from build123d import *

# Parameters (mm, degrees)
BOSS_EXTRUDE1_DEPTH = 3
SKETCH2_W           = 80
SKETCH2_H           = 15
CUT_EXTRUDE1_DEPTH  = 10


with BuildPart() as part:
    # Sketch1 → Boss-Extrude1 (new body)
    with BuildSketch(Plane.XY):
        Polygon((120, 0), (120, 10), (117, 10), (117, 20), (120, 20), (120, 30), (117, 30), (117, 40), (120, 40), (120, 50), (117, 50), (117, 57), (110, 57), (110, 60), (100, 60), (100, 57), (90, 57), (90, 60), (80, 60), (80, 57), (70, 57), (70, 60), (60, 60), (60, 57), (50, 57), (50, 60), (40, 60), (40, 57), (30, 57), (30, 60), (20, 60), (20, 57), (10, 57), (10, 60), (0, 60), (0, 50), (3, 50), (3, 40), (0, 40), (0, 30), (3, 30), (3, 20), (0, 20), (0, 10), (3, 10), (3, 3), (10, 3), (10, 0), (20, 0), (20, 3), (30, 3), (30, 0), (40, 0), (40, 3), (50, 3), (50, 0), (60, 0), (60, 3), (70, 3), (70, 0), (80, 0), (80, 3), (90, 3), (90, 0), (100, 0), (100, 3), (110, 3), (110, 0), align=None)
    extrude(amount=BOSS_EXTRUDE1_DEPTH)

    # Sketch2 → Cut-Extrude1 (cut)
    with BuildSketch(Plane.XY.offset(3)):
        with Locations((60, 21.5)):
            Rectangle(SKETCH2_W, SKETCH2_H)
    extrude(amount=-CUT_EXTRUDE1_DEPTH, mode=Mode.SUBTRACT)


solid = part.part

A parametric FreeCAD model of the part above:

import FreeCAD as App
import Part
import Sketcher

V = App.Vector


def add_polygon(sketch, points):
    """Adds a closed chain of lines whose ends are joined by coincident constraints."""
    first, n = sketch.GeometryCount, len(points)
    for a, b in zip(points, points[1:] + points[:1]):
        sketch.addGeometry(Part.LineSegment(App.Vector(*a, 0), App.Vector(*b, 0)), False)
    for i in range(n):
        sketch.addConstraint(Sketcher.Constraint("Coincident", first + i, 2, first + (i + 1) % n, 1))

doc = App.newDocument("Part")
body = doc.addObject("PartDesign::Body", "Body")

sketch1 = doc.addObject("Sketcher::SketchObject", "Sketch")
body.addObject(sketch1)
sketch1.AttachmentSupport = (doc.XY_Plane, [""])
sketch1.MapMode = "FlatFace"
add_polygon(sketch1, [(120, 0), (120, 10), (117, 10), (117, 20), (120, 20), (120, 30), (117, 30), (117, 40), (120, 40), (120, 50), (117, 50), (117, 57), (110, 57), (110, 60), (100, 60), (100, 57), (90, 57), (90, 60), (80, 60), (80, 57), (70, 57), (70, 60), (60, 60), (60, 57), (50, 57), (50, 60), (40, 60), (40, 57), (30, 57), (30, 60), (20, 60), (20, 57), (10, 57), (10, 60), (0, 60), (0, 50), (3, 50), (3, 40), (0, 40), (0, 30), (3, 30), (3, 20), (0, 20), (0, 10), (3, 10), (3, 3), (10, 3), (10, 0), (20, 0), (20, 3), (30, 3), (30, 0), (40, 0), (40, 3), (50, 3), (50, 0), (60, 0), (60, 3), (70, 3), (70, 0), (80, 0), (80, 3), (90, 3), (90, 0), (100, 0), (100, 3), (110, 3), (110, 0)])
sketch1.addConstraint([
    Sketcher.Constraint("Vertical", 0),
    Sketcher.Constraint("Horizontal", 1),
    Sketcher.Constraint("Vertical", 2),
    Sketcher.Constraint("Horizontal", 3),
    Sketcher.Constraint("Vertical", 4),
    Sketcher.Constraint("Horizontal", 5),
    Sketcher.Constraint("Vertical", 6),
    Sketcher.Constraint("Horizontal", 7),
    Sketcher.Constraint("Vertical", 8),
    Sketcher.Constraint("Horizontal", 9),
    Sketcher.Constraint("Vertical", 10),
    Sketcher.Constraint("Horizontal", 11),
    Sketcher.Constraint("Vertical", 12),
    Sketcher.Constraint("Horizontal", 13),
    Sketcher.Constraint("Vertical", 14),
    Sketcher.Constraint("Horizontal", 15),
    Sketcher.Constraint("Vertical", 16),
    Sketcher.Constraint("Horizontal", 17),
    Sketcher.Constraint("Vertical", 18),
    Sketcher.Constraint("Horizontal", 19),
    Sketcher.Constraint("Vertical", 20),
    Sketcher.Constraint("Horizontal", 21),
    Sketcher.Constraint("Vertical", 22),
    Sketcher.Constraint("Horizontal", 23),
    Sketcher.Constraint("Vertical", 24),
    Sketcher.Constraint("Horizontal", 25),
    Sketcher.Constraint("Vertical", 26),
    Sketcher.Constraint("Horizontal", 27),
    Sketcher.Constraint("Vertical", 28),
    Sketcher.Constraint("Horizontal", 29),
    Sketcher.Constraint("Vertical", 30),
    Sketcher.Constraint("Horizontal", 31),
    Sketcher.Constraint("Vertical", 32),
    Sketcher.Constraint("Horizontal", 33),
    Sketcher.Constraint("Vertical", 34),
    Sketcher.Constraint("Horizontal", 35),
    Sketcher.Constraint("Vertical", 36),
    Sketcher.Constraint("Horizontal", 37),
    Sketcher.Constraint("Vertical", 38),
    Sketcher.Constraint("Horizontal", 39),
    Sketcher.Constraint("Vertical", 40),
    Sketcher.Constraint("Horizontal", 41),
    Sketcher.Constraint("Vertical", 42),
    Sketcher.Constraint("Horizontal", 43),
    Sketcher.Constraint("Vertical", 44),
    Sketcher.Constraint("Horizontal", 45),
    Sketcher.Constraint("Vertical", 46),
    Sketcher.Constraint("Horizontal", 47),
    Sketcher.Constraint("Vertical", 48),
    Sketcher.Constraint("Horizontal", 49),
    Sketcher.Constraint("Vertical", 50),
    Sketcher.Constraint("Horizontal", 51),
    Sketcher.Constraint("Vertical", 52),
    Sketcher.Constraint("Horizontal", 53),
    Sketcher.Constraint("Vertical", 54),
    Sketcher.Constraint("Horizontal", 55),
    Sketcher.Constraint("Vertical", 56),
    Sketcher.Constraint("Horizontal", 57),
    Sketcher.Constraint("Vertical", 58),
    Sketcher.Constraint("Horizontal", 59),
    Sketcher.Constraint("Vertical", 60),
    Sketcher.Constraint("Horizontal", 61),
    Sketcher.Constraint("Vertical", 62),
    Sketcher.Constraint("Horizontal", 63),
    Sketcher.Constraint("Vertical", 64),
    Sketcher.Constraint("Horizontal", 65),
    Sketcher.Constraint("Vertical", 66),
    Sketcher.Constraint("Horizontal", 67),
    Sketcher.Constraint("PointOnObject", 33, 2, -2),
    Sketcher.Constraint("PointOnObject", 37, 2, -2),
    Sketcher.Constraint("PointOnObject", 41, 2, -2),
    Sketcher.Constraint("PointOnObject", 46, 2, -1),
    Sketcher.Constraint("PointOnObject", 50, 2, -1),
    Sketcher.Constraint("PointOnObject", 54, 2, -1),
    Sketcher.Constraint("PointOnObject", 58, 2, -1),
    Sketcher.Constraint("PointOnObject", 62, 2, -1),
    Sketcher.Constraint("PointOnObject", 66, 2, -1),
    Sketcher.Constraint("Horizontal", 11, 2, 14, 2),
    Sketcher.Constraint("Horizontal", 13, 2, 16, 2),
    Sketcher.Constraint("Horizontal", 15, 2, 18, 2),
    Sketcher.Constraint("Horizontal", 17, 2, 20, 2),
    Sketcher.Constraint("Horizontal", 19, 2, 22, 2),
    Sketcher.Constraint("Horizontal", 21, 2, 24, 2),
    Sketcher.Constraint("Horizontal", 23, 2, 26, 2),
    Sketcher.Constraint("Horizontal", 25, 2, 28, 2),
    Sketcher.Constraint("Horizontal", 27, 2, 30, 2),
    Sketcher.Constraint("Horizontal", 29, 2, 32, 2),
    Sketcher.Constraint("Horizontal", 9, 2, 34, 2),
    Sketcher.Constraint("Horizontal", 7, 2, 36, 2),
    Sketcher.Constraint("Horizontal", 5, 2, 38, 2),
    Sketcher.Constraint("Horizontal", 3, 2, 40, 2),
    Sketcher.Constraint("Horizontal", 1, 2, 42, 2),
    Sketcher.Constraint("Horizontal", 45, 2, 48, 2),
    Sketcher.Constraint("Horizontal", 49, 2, 52, 2),
    Sketcher.Constraint("Horizontal", 53, 2, 56, 2),
    Sketcher.Constraint("Horizontal", 57, 2, 60, 2),
    Sketcher.Constraint("Horizontal", 61, 2, 64, 2),
    Sketcher.Constraint("Vertical", 0, 2, 3, 2),
    Sketcher.Constraint("Vertical", 2, 2, 5, 2),
    Sketcher.Constraint("Vertical", 4, 2, 7, 2),
    Sketcher.Constraint("Vertical", 6, 2, 9, 2),
    Sketcher.Constraint("Vertical", 36, 2, 39, 2),
    Sketcher.Constraint("Vertical", 40, 2, 43, 2),
    Sketcher.Constraint("Vertical", 32, 2, 45, 2),
    Sketcher.Constraint("Vertical", 30, 2, 47, 2),
    Sketcher.Constraint("Vertical", 28, 2, 49, 2),
    Sketcher.Constraint("Vertical", 26, 2, 51, 2),
    Sketcher.Constraint("Vertical", 24, 2, 53, 2),
    Sketcher.Constraint("Vertical", 22, 2, 55, 2),
    Sketcher.Constraint("Vertical", 20, 2, 57, 2),
    Sketcher.Constraint("Vertical", 18, 2, 59, 2),
    Sketcher.Constraint("Vertical", 16, 2, 61, 2),
    Sketcher.Constraint("Vertical", 14, 2, 63, 2),
    Sketcher.Constraint("Vertical", 12, 2, 65, 2),
    Sketcher.Constraint("Equal", 13, 15),
    Sketcher.Constraint("Equal", 15, 17),
    Sketcher.Constraint("Equal", 17, 19),
    Sketcher.Constraint("Equal", 19, 21),
    Sketcher.Constraint("Equal", 21, 23),
    Sketcher.Constraint("Equal", 23, 25),
    Sketcher.Constraint("Equal", 25, 27),
    Sketcher.Constraint("Equal", 27, 29),
    Sketcher.Constraint("Equal", 29, 31),
    Sketcher.Constraint("Equal", 31, 33),
    Sketcher.Constraint("Equal", 9, 35),
    Sketcher.Constraint("Equal", 11, 45),
    Sketcher.Constraint("Equal", 67, 0),
    Sketcher.Constraint("Equal", 0, 2),
    Sketcher.Constraint("Equal", 2, 4),
    Sketcher.Constraint("Equal", 4, 6),
    Sketcher.Constraint("Equal", 6, 8),
    Sketcher.Constraint("Equal", 45, 10),
    Sketcher.Constraint("Equal", 43, 12),
    Sketcher.Constraint("Equal", 10, 44),
    Sketcher.Constraint("DistanceX", 1, 2, 1, 1, 3.0),
    Sketcher.Constraint("DistanceX", 11, 2, 11, 1, 7.0),
])
pad1 = doc.addObject("PartDesign::Pad", "Pad")
body.addObject(pad1)
pad1.Profile = sketch1
pad1.Length = 3

sketch2 = doc.addObject("Sketcher::SketchObject", "Sketch001")
body.addObject(sketch2)
sketch2.AttachmentSupport = (doc.XY_Plane, [""])
sketch2.MapMode = "FlatFace"
sketch2.AttachmentOffset = App.Placement(V(0, 0, 3), App.Rotation())
add_polygon(sketch2, [(20, 29), (20, 14), (100, 14), (100, 29)])
sketch2.addConstraint([
    Sketcher.Constraint("Vertical", 0),
    Sketcher.Constraint("Horizontal", 1),
    Sketcher.Constraint("Vertical", 2),
    Sketcher.Constraint("Horizontal", 3),
    Sketcher.Constraint("DistanceX", 1, 1, 1, 2, 80.0),
    Sketcher.Constraint("DistanceY", 0, 2, 0, 1, 15.0),
    Sketcher.Constraint("DistanceX", -1, 1, 0, 2, 20.0),
    Sketcher.Constraint("DistanceY", -1, 1, 0, 2, 14.0),
])
pocket1 = doc.addObject("PartDesign::Pocket", "Pocket")
body.addObject(pocket1)
pocket1.Profile = sketch2
pocket1.Length = 10

doc.recompute()
